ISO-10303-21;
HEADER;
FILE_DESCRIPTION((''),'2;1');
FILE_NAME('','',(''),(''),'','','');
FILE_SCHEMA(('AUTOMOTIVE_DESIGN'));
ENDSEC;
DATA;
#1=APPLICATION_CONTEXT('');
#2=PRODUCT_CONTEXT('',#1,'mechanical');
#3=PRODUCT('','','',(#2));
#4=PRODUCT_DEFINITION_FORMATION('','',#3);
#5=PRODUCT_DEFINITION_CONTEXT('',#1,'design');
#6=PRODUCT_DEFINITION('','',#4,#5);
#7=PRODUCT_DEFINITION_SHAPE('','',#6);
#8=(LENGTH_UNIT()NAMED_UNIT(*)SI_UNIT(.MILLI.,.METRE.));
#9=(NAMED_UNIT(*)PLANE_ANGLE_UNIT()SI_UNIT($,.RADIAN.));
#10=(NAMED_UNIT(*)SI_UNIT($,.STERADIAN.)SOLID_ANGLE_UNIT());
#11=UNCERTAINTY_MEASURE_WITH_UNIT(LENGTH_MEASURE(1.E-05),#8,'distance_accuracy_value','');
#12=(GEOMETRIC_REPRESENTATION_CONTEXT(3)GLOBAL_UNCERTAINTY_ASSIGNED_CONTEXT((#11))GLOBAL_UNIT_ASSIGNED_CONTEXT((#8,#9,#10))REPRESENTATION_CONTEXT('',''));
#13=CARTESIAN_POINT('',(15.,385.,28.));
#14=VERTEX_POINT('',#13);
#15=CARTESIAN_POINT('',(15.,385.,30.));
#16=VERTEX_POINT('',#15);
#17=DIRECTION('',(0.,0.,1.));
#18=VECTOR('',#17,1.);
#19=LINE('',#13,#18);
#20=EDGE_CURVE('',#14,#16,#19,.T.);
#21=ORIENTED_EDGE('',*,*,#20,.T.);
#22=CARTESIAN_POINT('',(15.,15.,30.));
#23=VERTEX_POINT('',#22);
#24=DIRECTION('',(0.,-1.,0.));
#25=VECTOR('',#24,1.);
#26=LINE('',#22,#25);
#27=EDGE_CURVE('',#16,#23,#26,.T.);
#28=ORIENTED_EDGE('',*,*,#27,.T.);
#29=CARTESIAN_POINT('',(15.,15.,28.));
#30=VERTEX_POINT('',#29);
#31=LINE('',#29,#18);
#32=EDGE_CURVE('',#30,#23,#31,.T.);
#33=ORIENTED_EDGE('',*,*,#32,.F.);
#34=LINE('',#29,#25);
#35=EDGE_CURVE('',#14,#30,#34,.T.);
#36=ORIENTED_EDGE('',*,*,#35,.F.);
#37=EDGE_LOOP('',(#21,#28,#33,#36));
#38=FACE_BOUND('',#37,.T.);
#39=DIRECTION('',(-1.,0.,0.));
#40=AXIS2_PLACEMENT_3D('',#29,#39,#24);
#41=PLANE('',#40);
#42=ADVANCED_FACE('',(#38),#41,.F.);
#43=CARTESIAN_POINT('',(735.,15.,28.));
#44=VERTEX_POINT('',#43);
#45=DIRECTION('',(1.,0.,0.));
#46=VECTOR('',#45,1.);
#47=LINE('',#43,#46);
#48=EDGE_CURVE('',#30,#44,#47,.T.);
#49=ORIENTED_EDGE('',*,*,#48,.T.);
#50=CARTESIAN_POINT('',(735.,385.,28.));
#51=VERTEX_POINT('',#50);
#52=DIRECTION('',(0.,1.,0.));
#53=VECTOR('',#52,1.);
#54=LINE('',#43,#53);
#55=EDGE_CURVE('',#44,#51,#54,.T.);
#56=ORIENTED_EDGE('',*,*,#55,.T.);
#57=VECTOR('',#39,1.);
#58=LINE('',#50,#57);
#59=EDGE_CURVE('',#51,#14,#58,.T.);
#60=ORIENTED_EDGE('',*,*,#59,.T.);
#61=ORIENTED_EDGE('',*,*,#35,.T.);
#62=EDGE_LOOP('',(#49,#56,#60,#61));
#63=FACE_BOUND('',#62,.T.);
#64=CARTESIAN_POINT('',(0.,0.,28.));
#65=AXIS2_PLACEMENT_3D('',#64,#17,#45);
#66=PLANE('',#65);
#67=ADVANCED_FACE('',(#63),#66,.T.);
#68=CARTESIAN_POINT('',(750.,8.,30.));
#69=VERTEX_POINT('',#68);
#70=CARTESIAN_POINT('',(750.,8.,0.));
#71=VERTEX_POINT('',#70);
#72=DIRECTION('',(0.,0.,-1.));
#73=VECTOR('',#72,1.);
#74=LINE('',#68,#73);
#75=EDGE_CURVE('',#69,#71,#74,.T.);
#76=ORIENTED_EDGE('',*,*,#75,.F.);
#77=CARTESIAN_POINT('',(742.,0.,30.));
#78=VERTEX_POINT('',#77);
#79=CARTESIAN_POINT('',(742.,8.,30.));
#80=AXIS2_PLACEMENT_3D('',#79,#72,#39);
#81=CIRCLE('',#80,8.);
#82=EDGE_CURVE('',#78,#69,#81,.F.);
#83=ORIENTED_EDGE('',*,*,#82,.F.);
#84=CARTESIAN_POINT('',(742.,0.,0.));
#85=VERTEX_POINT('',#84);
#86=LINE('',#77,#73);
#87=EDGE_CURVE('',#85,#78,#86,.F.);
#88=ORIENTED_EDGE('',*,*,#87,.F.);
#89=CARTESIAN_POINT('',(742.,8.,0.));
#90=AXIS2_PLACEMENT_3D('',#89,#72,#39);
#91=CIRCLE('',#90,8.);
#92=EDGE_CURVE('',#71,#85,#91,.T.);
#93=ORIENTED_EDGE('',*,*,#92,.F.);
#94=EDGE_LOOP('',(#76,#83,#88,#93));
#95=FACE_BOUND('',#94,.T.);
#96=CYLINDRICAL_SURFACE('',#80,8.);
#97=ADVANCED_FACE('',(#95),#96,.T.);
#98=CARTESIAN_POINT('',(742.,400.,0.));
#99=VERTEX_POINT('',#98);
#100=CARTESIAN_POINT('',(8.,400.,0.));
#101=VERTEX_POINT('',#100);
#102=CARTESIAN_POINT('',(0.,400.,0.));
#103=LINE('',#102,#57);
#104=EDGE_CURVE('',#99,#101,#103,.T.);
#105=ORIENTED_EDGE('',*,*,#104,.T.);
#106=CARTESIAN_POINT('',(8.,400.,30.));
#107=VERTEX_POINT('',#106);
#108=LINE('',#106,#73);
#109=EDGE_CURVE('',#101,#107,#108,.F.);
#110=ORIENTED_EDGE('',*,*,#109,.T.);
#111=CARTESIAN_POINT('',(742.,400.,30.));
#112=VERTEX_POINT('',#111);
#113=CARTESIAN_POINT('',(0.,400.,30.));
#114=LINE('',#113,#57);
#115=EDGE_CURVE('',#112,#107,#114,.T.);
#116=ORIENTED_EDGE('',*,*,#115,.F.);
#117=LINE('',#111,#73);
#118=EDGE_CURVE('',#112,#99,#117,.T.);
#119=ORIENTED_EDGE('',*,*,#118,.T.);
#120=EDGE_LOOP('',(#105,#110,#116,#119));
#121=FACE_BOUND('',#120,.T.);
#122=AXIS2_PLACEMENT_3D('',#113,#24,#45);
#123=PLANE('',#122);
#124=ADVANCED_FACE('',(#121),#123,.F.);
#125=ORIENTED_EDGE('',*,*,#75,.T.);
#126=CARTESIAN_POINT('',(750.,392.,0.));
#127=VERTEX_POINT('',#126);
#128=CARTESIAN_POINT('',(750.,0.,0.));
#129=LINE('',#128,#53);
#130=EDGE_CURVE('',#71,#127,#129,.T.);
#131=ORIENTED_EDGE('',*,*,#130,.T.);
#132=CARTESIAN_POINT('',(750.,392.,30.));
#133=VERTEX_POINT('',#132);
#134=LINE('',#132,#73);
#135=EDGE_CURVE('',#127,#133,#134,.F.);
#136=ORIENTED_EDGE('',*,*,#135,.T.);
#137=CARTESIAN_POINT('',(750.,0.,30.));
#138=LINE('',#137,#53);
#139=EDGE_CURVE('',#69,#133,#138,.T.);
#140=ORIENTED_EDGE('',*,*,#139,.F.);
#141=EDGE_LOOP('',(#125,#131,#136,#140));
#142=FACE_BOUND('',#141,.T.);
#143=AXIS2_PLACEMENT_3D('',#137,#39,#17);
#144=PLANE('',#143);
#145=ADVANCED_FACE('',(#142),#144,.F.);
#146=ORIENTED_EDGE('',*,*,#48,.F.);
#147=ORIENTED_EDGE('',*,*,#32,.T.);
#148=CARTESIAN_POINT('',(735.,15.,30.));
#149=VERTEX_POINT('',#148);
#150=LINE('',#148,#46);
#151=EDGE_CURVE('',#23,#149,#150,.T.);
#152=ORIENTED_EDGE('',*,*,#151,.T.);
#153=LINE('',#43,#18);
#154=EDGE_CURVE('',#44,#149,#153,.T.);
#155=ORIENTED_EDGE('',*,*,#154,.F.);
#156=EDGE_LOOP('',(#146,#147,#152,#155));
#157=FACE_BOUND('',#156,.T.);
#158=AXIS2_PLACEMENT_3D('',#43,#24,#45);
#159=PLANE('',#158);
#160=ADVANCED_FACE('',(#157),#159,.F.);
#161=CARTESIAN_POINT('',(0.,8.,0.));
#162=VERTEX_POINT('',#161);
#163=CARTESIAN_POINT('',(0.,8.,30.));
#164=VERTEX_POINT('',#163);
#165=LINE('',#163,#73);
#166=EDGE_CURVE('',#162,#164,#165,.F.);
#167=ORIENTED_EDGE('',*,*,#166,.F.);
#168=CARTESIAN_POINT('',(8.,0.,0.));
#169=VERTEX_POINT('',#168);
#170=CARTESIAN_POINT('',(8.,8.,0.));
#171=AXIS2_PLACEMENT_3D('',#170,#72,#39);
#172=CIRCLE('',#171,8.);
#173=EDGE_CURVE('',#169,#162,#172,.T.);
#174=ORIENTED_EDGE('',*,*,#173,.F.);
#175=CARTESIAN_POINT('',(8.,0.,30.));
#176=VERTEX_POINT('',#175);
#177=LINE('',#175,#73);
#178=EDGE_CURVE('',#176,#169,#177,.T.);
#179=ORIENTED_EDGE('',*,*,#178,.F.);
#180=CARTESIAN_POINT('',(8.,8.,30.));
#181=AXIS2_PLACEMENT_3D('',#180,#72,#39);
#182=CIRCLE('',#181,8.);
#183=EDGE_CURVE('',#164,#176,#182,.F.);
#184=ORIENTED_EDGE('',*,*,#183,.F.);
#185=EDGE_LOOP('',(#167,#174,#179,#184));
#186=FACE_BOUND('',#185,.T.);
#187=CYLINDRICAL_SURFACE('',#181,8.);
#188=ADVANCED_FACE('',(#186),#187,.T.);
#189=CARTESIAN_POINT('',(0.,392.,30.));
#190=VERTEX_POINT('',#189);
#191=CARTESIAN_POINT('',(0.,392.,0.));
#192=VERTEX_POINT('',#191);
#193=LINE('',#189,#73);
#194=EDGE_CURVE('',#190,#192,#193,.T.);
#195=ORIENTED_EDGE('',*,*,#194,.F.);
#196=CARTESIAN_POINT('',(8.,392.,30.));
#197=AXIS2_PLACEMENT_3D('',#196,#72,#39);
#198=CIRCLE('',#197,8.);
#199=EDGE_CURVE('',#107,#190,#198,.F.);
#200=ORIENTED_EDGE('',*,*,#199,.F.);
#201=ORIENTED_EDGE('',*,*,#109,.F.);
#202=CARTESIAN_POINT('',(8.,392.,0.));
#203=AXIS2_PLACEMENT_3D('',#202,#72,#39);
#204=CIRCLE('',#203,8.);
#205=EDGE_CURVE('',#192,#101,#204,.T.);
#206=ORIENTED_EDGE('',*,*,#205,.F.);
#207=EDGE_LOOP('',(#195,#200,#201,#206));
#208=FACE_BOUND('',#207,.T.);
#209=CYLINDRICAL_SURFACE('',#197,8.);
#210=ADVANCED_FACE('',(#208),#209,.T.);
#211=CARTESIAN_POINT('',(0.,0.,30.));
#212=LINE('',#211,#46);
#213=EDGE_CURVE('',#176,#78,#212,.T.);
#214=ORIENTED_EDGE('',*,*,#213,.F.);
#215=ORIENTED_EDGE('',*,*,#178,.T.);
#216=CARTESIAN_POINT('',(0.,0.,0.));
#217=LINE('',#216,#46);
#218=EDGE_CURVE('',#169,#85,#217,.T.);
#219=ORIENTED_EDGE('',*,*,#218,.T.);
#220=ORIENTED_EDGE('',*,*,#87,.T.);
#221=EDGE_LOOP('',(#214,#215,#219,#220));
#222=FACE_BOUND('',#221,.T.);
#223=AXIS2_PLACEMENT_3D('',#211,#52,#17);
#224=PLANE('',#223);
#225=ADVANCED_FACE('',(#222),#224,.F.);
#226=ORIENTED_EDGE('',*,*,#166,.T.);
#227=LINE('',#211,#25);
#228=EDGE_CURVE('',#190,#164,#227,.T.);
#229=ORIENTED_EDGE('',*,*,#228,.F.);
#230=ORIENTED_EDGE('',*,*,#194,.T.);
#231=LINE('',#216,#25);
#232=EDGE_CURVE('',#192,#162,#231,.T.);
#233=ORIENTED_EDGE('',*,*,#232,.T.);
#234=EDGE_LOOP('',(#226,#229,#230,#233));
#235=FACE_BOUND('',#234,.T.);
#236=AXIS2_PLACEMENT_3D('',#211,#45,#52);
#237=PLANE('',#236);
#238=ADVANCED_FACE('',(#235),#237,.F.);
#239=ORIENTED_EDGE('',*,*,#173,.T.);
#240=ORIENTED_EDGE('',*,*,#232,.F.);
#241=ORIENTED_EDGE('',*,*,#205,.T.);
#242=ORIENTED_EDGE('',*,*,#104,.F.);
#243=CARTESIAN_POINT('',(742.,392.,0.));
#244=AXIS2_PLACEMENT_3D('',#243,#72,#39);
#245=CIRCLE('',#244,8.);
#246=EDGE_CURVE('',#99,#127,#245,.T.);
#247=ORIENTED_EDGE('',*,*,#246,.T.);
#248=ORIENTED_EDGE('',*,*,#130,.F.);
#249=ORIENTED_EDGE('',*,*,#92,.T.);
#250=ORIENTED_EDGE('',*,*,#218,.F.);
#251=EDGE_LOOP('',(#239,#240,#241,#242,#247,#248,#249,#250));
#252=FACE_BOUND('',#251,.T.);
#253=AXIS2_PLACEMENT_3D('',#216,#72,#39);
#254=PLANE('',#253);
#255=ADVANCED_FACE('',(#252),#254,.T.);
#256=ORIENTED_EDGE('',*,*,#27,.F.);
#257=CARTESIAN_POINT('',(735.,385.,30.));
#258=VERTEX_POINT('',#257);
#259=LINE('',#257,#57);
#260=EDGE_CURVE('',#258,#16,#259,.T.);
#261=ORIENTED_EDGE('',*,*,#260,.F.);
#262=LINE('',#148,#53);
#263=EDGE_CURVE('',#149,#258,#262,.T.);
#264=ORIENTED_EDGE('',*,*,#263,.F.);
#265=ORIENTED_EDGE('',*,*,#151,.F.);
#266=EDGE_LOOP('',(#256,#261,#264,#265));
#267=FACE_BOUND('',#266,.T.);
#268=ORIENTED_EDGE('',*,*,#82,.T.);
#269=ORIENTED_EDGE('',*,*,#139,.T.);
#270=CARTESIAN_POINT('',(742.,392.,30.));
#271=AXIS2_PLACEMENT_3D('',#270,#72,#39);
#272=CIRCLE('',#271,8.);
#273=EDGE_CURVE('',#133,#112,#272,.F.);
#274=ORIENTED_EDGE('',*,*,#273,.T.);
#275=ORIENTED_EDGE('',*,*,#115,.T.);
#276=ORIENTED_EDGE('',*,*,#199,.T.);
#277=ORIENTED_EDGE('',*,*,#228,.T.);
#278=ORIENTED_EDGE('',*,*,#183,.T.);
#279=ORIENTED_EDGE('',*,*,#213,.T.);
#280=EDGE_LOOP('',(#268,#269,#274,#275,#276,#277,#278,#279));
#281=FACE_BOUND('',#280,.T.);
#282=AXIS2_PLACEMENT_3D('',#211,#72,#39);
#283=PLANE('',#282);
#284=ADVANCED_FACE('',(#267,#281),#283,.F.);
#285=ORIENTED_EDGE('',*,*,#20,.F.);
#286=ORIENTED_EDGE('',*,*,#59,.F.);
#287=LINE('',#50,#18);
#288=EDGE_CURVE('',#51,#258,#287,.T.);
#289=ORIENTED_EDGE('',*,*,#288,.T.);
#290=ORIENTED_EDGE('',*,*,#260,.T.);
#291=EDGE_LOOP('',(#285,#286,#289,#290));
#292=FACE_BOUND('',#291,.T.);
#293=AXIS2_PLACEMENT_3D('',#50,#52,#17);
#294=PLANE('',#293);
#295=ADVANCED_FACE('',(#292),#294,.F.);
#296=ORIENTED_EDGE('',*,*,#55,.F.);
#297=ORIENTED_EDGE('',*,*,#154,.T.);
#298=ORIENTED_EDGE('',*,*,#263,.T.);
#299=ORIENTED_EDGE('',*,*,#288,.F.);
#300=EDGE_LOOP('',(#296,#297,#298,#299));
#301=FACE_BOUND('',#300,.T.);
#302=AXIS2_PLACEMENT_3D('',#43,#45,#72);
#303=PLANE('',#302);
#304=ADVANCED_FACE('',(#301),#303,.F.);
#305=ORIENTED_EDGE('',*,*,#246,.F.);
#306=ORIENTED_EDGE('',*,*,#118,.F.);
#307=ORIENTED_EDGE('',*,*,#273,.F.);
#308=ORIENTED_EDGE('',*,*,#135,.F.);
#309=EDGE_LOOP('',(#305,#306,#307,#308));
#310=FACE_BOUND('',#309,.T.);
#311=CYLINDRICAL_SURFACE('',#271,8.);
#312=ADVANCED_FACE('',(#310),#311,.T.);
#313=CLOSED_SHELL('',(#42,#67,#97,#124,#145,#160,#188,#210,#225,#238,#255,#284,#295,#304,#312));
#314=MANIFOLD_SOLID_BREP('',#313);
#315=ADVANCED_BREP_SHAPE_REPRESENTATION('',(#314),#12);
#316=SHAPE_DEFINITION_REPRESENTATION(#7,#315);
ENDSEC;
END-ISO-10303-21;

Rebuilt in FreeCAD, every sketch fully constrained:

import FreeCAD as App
import Part
import Sketcher

V = App.Vector
Q = App.Units.Quantity


def edges_at(feature, points):
    """Names of the edges that pass closest to the given points."""
    edges = feature.Shape.Edges
    near = lambda p: min(range(len(edges)), key=lambda i: edges[i].distToShape(Part.Vertex(*p))[0])
    return sorted({f"Edge{near(p) + 1}" for p in points})

doc = App.newDocument("Part")
body = doc.addObject("PartDesign::Body", "Body")

# Sketch on XY plane
sketch1 = body.newObject("Sketcher::SketchObject", "Sketch")
sketch1.AttachmentSupport = (doc.getObject("XY_Plane"), [""])
sketch1.MapMode = "FlatFace"
sketch1.addGeometry([
    Part.LineSegment(V(0, 400, 0), V(0, 0, 0)),
    Part.LineSegment(V(0, 0, 0), V(750, 0, 0)),
    Part.LineSegment(V(750, 0, 0), V(750, 400, 0)),
    Part.LineSegment(V(750, 400, 0), V(0, 400, 0)),
], False)
sketch1.addConstraint([
    Sketcher.Constraint("Coincident", 0, 2, 1, 1),
    Sketcher.Constraint("Coincident", 1, 2, 2, 1),
    Sketcher.Constraint("Coincident", 2, 2, 3, 1),
    Sketcher.Constraint("Coincident", 3, 2, 0, 1),
    Sketcher.Constraint("Vertical", 0),
    Sketcher.Constraint("Horizontal", 1),
    Sketcher.Constraint("Vertical", 2),
    Sketcher.Constraint("Horizontal", 3),
    Sketcher.Constraint("Coincident", 0, 2, -1, 1),
    Sketcher.Constraint("DistanceX", 1, 1, 1, 2, Q("750 mm")),
    Sketcher.Constraint("DistanceY", 0, 2, 0, 1, Q("400 mm")),
])
pad1 = body.newObject("PartDesign::Pad", "Pad")
pad1.Profile = sketch1
pad1.Length = 30

# Sketch on XY plane
sketch2 = body.newObject("Sketcher::SketchObject", "Sketch001")
sketch2.AttachmentSupport = (doc.getObject("XY_Plane"), [""])
sketch2.MapMode = "FlatFace"
sketch2.AttachmentOffset = App.Placement(V(0, 0, 30), App.Rotation())
sketch2.addGeometry([
    Part.LineSegment(V(15, 385, 0), V(15, 15, 0)),
    Part.LineSegment(V(15, 15, 0), V(735, 15, 0)),
    Part.LineSegment(V(735, 15, 0), V(735, 385, 0)),
    Part.LineSegment(V(735, 385, 0), V(15, 385, 0)),
], False)
sketch2.addConstraint([
    Sketcher.Constraint("Coincident", 0, 2, 1, 1),
    Sketcher.Constraint("Coincident", 1, 2, 2, 1),
    Sketcher.Constraint("Coincident", 2, 2, 3, 1),
    Sketcher.Constraint("Coincident", 3, 2, 0, 1),
    Sketcher.Constraint("Vertical", 0),
    Sketcher.Constraint("Horizontal", 1),
    Sketcher.Constraint("Vertical", 2),
    Sketcher.Constraint("Horizontal", 3),
    Sketcher.Constraint("DistanceX", 1, 1, 1, 2, Q("720 mm")),
    Sketcher.Constraint("DistanceY", 0, 2, 0, 1, Q("370 mm")),
    Sketcher.Constraint("DistanceX", -1, 1, 0, 2, Q("15 mm")),
    Sketcher.Constraint("DistanceY", -1, 1, 0, 2, Q("15 mm")),
])
pocket1 = body.newObject("PartDesign::Pocket", "Pocket")
pocket1.Profile = sketch2
pocket1.Length = 2
doc.recompute()

fillet = body.newObject("PartDesign::Fillet", "Fillet")
fillet.Base = (pocket1, edges_at(pocket1, [
    (0, 400, 15),
    (750, 400, 15),
    (750, 0, 15),
    (0, 0, 15),
]))
fillet.Radius = 8

doc.recompute()
